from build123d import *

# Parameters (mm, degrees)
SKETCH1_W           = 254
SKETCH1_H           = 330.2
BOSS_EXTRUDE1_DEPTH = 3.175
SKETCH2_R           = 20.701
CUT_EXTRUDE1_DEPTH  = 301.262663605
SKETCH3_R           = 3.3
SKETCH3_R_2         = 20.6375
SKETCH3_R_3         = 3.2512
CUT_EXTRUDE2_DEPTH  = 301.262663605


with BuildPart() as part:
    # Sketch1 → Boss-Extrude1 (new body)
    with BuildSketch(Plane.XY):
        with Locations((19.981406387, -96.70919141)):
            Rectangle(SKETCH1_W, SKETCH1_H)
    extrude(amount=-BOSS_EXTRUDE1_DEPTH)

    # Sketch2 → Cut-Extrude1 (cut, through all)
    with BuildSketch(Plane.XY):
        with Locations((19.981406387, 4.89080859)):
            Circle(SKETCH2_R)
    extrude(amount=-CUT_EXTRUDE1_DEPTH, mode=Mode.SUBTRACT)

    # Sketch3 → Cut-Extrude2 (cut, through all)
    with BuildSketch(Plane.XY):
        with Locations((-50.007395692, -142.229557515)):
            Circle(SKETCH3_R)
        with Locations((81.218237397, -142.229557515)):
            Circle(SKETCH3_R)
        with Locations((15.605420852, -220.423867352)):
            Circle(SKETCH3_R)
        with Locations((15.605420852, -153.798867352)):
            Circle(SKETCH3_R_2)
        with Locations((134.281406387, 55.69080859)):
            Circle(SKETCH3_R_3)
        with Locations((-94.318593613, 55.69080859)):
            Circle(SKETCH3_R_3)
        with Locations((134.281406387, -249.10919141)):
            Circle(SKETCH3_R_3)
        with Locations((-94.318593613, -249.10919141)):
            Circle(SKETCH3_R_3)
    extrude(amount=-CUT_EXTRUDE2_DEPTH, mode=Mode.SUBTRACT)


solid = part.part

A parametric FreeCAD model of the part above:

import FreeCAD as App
import Part
import Sketcher
from FreeCAD import Vector
Q = App.Units.Quantity

doc = App.newDocument("Part")
params = doc.addObject("Spreadsheet::Sheet", "Params")
for row, (alias, value) in enumerate([
    ("sketch1_width", "10 in"),
    ("sketch1_height", "13 in"),
    ("pad1_length", "0.125 in"),
    ("sketch2_diameter", "1.63 in"),
    ("sketch3_diameter", "1.625 in"),
    ("sketch3_diameter2", "0.256 in"),
], start=1):
    params.set(f"A{row}", alias)
    params.set(f"B{row}", "=" + value)
    params.setAlias(f"B{row}", alias)

body = doc.addObject("PartDesign::Body", "Body")

sketch1 = doc.addObject("Sketcher::SketchObject", "Sketch")
body.addObject(sketch1)
sketch1.AttachmentSupport = (doc.XY_Plane, [""])
sketch1.MapMode = "FlatFace"
sketch1.addGeometry([
    Part.LineSegment(Vector(-107, 68, 0), Vector(-107, -262, 0)),
    Part.LineSegment(Vector(-107, -262, 0), Vector(147, -262, 0)),
    Part.LineSegment(Vector(147, -262, 0), Vector(147, 68, 0)),
    Part.LineSegment(Vector(147, 68, 0), Vector(-107, 68, 0)),
], False)
sketch1.addConstraint([
    Sketcher.Constraint("Coincident", 0, 2, 1, 1),
    Sketcher.Constraint("Coincident", 1, 2, 2, 1),
    Sketcher.Constraint("Coincident", 2, 2, 3, 1),
    Sketcher.Constraint("Coincident", 3, 2, 0, 1),
    Sketcher.Constraint("Vertical", 0),
    Sketcher.Constraint("Horizontal", 1),
    Sketcher.Constraint("Vertical", 2),
    Sketcher.Constraint("Horizontal", 3),
    Sketcher.Constraint("DistanceX", 1, 1, 1, 2, Q("10 in")),
    Sketcher.Constraint("DistanceY", 0, 2, 0, 1, Q("13 in")),
    Sketcher.Constraint("DistanceY", 0, 2, -1, 1, 261.809191),
    Sketcher.Constraint("DistanceX", 0, 2, -1, 1, 107.018594),
])
sketch1.setExpression("Constraints[8]", "Params.sketch1_width")
sketch1.setExpression("Constraints[9]", "Params.sketch1_height")
pad1 = doc.addObject("PartDesign::Pad", "Pad")
body.addObject(pad1)
pad1.Profile = sketch1
pad1.setExpression("Length", "Params.pad1_length")
pad1.Reversed = True

sketch2 = doc.addObject("Sketcher::SketchObject", "Sketch001")
body.addObject(sketch2)
sketch2.AttachmentSupport = (doc.XY_Plane, [""])
sketch2.MapMode = "FlatFace"
sketch2.addGeometry(Part.Circle(Vector(20, 5, 0), Vector(0, 0, 1), 21), False)
sketch2.addConstraint([
    Sketcher.Constraint("Diameter", 0, Q("1.63 in")),
    Sketcher.Constraint("DistanceY", -1, 1, 0, 3, 4.890809),
    Sketcher.Constraint("DistanceX", -1, 1, 0, 3, 19.981406),
])
sketch2.setExpression("Constraints[0]", "Params.sketch2_diameter")
pocket1 = doc.addObject("PartDesign::Pocket", "Pocket")
body.addObject(pocket1)
pocket1.Profile = sketch2
pocket1.Type = "ThroughAll"

sketch3 = doc.addObject("Sketcher::SketchObject", "Sketch002")
body.addObject(sketch3)
sketch3.AttachmentSupport = (doc.XY_Plane, [""])
sketch3.MapMode = "FlatFace"
sketch3.addGeometry([
    Part.Circle(Vector(-50, -142.2, 0), Vector(0, 0, 1), 3.3),
    Part.Circle(Vector(81.2, -142.2, 0), Vector(0, 0, 1), 3.3),
    Part.Circle(Vector(15.6, -220.4, 0), Vector(0, 0, 1), 3.3),
    Part.Circle(Vector(15.6, -153.8, 0), Vector(0, 0, 1), 20.6),
    Part.Circle(Vector(134.3, 55.7, 0), Vector(0, 0, 1), 3.3),
    Part.Circle(Vector(-94.3, 55.7, 0), Vector(0, 0, 1), 3.3),
    Part.Circle(Vector(134.3, -249.1, 0), Vector(0, 0, 1), 3.3),
    Part.Circle(Vector(-94.3, -249.1, 0), Vector(0, 0, 1), 3.3),
], False)
sketch3.addConstraint([
    Sketcher.Constraint("Equal", 0, 1),
    Sketcher.Constraint("Equal", 1, 2),
    Sketcher.Constraint("Equal", 4, 5),
    Sketcher.Constraint("Equal", 5, 6),
    Sketcher.Constraint("Equal", 6, 7),
    Sketcher.Constraint("Horizontal", 0, 3, 1, 3),
    Sketcher.Constraint("Horizontal", 4, 3, 5, 3),
    Sketcher.Constraint("Horizontal", 6, 3, 7, 3),
    Sketcher.Constraint("Vertical", 2, 3, 3, 3),
    Sketcher.Constraint("Vertical", 4, 3, 6, 3),
    Sketcher.Constraint("Vertical", 5, 3, 7, 3),
    Sketcher.Constraint("Diameter", 3, Q("1.625 in")),
    Sketcher.Constraint("Diameter", 4, Q("0.256 in")),
    Sketcher.Constraint("DistanceX", 5, 3, 4, 3, Q("9 in")),
    Sketcher.Constraint("DistanceY", 6, 3, 4, 3, Q("12 in")),
    Sketcher.Constraint("Diameter", 0, 6.6),
    Sketcher.Constraint("DistanceY", 2, 3, 3, 3, 66.625),
    Sketcher.Constraint("DistanceX", -1, 1, 2, 3, 15.605421),
    Sketcher.Constraint("DistanceY", -1, 1, 4, 3, 55.690809),
    Sketcher.Constraint("DistanceY", 2, 3, 0, 3, 78.19431),
    Sketcher.Constraint("DistanceX", 1, 3, 4, 3, 53.063169),
    Sketcher.Constraint("DistanceX", 0, 3, -1, 1, 50.007396),
    Sketcher.Constraint("DistanceY", 0, 3, -1, 1, 142.229558),
    Sketcher.Constraint("DistanceX", -1, 1, 1, 3, 81.218237),
])
sketch3.setExpression("Constraints[11]", "Params.sketch3_diameter")
sketch3.setExpression("Constraints[12]", "Params.sketch3_diameter2")
pocket2 = doc.addObject("PartDesign::Pocket", "Pocket001")
body.addObject(pocket2)
pocket2.Profile = sketch3
pocket2.Type = "ThroughAll"

doc.recompute()
